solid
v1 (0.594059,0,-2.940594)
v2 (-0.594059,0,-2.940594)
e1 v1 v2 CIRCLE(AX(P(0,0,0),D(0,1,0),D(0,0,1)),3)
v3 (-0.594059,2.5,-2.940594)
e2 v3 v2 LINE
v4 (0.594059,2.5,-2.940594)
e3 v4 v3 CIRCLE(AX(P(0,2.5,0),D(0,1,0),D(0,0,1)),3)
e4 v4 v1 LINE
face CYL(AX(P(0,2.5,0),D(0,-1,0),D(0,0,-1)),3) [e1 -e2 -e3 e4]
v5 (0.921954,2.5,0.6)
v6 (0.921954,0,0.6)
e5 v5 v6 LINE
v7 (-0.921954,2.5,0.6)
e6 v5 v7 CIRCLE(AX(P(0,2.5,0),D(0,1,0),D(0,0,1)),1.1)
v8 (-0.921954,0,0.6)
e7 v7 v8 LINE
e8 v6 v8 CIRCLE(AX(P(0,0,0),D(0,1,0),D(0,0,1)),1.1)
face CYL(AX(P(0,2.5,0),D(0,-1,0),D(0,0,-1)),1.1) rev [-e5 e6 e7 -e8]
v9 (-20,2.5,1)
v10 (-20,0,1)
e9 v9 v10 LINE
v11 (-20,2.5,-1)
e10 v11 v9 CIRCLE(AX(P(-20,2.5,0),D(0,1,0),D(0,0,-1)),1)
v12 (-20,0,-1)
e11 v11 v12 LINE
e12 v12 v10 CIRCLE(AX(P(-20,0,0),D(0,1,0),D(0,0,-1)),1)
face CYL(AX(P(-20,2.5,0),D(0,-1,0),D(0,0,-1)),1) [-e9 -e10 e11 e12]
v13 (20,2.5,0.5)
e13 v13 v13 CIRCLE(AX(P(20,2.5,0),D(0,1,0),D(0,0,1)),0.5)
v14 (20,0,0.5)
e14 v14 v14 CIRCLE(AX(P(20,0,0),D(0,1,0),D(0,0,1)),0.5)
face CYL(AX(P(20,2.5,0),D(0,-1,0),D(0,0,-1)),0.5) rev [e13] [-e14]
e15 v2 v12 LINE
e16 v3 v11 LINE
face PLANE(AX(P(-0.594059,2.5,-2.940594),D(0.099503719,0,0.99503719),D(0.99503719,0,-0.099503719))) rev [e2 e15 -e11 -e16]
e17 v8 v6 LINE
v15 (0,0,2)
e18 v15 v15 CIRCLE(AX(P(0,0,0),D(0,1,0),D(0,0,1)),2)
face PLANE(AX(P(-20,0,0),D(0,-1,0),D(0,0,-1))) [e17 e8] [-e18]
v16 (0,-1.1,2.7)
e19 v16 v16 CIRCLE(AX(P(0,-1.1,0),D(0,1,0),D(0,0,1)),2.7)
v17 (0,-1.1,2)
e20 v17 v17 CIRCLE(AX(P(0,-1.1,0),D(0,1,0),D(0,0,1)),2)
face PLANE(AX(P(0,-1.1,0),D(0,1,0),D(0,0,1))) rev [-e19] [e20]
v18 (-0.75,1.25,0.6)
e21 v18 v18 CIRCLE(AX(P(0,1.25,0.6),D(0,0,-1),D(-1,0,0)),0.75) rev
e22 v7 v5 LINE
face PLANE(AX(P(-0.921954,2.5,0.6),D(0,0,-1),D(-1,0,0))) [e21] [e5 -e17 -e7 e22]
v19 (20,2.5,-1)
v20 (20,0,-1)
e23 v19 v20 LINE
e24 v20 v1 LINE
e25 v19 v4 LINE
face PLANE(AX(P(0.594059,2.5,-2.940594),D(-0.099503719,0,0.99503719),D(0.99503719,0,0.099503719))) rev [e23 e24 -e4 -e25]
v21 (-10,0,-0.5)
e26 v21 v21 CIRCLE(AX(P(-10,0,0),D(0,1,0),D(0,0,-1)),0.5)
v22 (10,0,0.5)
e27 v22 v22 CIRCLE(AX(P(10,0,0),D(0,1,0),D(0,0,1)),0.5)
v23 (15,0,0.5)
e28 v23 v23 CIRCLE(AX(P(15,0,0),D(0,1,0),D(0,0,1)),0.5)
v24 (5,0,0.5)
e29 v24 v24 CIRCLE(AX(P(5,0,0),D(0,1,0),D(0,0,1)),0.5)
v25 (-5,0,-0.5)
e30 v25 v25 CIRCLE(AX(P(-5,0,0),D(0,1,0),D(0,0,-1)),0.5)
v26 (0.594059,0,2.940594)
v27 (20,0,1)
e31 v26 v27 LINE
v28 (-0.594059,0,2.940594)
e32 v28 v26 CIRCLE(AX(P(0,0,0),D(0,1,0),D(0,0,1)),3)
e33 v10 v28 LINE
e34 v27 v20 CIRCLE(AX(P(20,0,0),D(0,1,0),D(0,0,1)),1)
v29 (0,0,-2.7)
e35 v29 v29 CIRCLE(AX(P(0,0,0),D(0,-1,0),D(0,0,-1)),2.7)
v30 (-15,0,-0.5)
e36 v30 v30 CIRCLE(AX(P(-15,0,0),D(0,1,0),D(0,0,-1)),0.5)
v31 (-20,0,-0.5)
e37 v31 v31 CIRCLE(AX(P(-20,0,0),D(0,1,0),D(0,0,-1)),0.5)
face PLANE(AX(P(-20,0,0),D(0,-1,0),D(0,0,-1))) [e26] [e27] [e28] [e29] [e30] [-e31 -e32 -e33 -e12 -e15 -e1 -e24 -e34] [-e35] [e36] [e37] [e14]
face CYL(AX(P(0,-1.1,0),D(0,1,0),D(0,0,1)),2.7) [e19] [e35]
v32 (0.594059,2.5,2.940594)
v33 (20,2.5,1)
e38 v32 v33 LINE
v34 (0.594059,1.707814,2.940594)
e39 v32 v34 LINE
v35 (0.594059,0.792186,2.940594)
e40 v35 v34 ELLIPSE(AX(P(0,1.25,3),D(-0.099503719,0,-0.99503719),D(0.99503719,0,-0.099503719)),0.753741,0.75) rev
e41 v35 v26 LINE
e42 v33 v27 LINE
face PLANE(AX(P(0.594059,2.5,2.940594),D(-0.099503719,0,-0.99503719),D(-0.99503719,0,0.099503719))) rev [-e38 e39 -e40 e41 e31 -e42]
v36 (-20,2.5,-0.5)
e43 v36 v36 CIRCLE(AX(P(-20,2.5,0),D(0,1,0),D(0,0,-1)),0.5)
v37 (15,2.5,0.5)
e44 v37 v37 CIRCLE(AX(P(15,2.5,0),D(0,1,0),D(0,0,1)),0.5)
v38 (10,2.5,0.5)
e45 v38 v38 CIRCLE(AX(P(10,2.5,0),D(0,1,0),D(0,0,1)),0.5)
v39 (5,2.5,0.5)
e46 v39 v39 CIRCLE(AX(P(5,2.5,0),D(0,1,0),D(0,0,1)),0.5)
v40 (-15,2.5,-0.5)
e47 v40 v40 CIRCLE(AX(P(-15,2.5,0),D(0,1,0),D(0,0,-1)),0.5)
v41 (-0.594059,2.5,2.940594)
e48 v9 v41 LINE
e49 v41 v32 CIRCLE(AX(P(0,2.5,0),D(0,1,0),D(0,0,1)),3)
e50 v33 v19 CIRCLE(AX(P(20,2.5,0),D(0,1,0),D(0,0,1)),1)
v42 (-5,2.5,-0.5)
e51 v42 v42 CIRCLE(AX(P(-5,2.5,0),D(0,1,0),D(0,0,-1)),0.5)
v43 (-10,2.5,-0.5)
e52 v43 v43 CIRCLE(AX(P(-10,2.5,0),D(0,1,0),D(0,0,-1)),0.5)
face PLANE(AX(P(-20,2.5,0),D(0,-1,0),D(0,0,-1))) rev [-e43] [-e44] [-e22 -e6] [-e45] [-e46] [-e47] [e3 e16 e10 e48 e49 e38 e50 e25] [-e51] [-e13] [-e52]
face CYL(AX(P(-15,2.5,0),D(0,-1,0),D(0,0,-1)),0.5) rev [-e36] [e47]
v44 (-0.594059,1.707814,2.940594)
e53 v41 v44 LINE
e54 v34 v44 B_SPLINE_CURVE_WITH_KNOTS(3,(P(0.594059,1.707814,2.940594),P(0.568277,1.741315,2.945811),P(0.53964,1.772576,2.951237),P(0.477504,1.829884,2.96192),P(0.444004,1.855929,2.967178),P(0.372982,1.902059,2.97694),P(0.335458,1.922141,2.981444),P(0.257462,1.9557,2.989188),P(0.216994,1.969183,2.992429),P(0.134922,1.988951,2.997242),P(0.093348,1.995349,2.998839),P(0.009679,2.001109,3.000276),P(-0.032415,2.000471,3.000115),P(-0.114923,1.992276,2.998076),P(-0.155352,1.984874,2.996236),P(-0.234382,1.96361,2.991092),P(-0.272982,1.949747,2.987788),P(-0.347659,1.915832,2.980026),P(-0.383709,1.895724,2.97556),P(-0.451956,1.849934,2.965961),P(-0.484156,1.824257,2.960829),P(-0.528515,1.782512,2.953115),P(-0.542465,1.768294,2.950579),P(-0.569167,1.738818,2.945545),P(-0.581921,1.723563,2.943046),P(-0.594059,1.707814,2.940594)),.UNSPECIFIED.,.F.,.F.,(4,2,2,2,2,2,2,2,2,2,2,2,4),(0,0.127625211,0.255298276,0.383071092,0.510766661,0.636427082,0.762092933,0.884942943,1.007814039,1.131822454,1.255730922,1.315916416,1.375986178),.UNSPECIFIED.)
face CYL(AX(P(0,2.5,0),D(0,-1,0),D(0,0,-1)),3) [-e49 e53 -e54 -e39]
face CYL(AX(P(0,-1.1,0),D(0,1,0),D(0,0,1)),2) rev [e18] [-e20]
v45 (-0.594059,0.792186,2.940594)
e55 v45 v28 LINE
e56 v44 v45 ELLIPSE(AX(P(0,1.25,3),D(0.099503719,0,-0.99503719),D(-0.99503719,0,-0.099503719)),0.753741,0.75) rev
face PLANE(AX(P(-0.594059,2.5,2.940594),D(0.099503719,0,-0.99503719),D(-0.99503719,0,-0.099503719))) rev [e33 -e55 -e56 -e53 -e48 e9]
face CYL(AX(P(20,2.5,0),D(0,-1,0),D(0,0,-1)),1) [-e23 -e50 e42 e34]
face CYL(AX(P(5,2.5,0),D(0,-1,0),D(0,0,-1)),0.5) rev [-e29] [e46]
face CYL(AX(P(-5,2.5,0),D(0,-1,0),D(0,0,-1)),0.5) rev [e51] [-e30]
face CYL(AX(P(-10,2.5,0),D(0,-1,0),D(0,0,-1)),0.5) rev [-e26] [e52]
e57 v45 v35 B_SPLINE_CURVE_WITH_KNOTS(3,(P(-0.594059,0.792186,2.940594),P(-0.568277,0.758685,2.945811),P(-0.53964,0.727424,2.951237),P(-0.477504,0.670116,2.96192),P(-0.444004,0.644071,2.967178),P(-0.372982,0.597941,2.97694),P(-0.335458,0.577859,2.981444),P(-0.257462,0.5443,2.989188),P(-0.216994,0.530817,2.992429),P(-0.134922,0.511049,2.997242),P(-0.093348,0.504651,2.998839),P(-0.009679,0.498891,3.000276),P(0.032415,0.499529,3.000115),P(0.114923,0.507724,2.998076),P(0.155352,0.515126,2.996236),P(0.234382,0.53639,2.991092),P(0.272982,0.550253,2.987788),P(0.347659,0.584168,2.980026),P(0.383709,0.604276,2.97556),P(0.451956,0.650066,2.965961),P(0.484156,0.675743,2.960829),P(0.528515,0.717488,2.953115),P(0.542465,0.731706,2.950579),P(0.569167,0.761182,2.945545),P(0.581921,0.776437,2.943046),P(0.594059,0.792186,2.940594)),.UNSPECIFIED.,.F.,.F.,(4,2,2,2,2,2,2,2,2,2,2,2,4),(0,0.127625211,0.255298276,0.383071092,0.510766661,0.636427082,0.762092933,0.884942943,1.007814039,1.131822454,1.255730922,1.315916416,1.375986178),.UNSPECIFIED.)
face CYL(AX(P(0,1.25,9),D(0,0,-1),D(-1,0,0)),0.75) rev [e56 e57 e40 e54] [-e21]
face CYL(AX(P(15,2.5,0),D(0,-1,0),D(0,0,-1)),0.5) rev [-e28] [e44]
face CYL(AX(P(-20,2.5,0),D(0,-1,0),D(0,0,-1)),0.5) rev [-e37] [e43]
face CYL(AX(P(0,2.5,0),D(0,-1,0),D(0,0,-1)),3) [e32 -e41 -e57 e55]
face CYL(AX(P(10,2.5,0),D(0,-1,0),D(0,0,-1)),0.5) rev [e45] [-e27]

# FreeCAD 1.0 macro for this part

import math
import FreeCAD as App
import Part
import Sketcher
from FreeCAD import Vector
Q = App.Units.Quantity

doc = App.newDocument("Part")
body = doc.addObject("PartDesign::Body", "Body")

# Sketch on XZ plane
sketch1 = body.newObject("Sketcher::SketchObject", "Sketch")
sketch1.AttachmentSupport = (doc.getObject("XZ_Plane"), [""])
sketch1.MapMode = "FlatFace"
sketch1.addGeometry([
    Part.LineSegment(Vector(20, -1, 0), Vector(0.594059, -2.940594, 0)),  # 0
    Part.ArcOfCircle(Part.Circle(Vector(0, 0, 0), Vector(0, 0, 1), 3), math.radians(-101.421186), math.radians(-78.578814)),  # 1
    Part.LineSegment(Vector(-0.594059, -2.940594, 0), Vector(-20, -1, 0)),  # 2
    Part.ArcOfCircle(Part.Circle(Vector(-20, 0, 0), Vector(0, 0, 1), 1), math.radians(90), math.radians(270)),  # 3
    Part.LineSegment(Vector(-20, 1, 0), Vector(-0.594059, 2.940594, 0)),  # 4
    Part.ArcOfCircle(Part.Circle(Vector(0, 0, 0), Vector(0, 0, 1), 3), math.radians(78.578814), math.radians(101.421186)),  # 5
    Part.LineSegment(Vector(0.594059, 2.940594, 0), Vector(20, 1, 0)),  # 6
    Part.ArcOfCircle(Part.Circle(Vector(20, 0, 0), Vector(0, 0, 1), 1), math.radians(-90), math.radians(90)),  # 7
    Part.Circle(Vector(20, 0, 0), Vector(0, 0, 1), 0.5),  # 8
    Part.Circle(Vector(15, 0, 0), Vector(0, 0, 1), 0.5),  # 9
    Part.Circle(Vector(10, 0, 0), Vector(0, 0, 1), 0.5),  # 10
    Part.Circle(Vector(5, 0, 0), Vector(0, 0, 1), 0.5),  # 11
    Part.Circle(Vector(-5, 0, 0), Vector(0, 0, 1), 0.5),  # 12
    Part.Circle(Vector(-10, 0, 0), Vector(0, 0, 1), 0.5),  # 13
    Part.Circle(Vector(-15, 0, 0), Vector(0, 0, 1), 0.5),  # 14
    Part.Circle(Vector(-20, 0, 0), Vector(0, 0, 1), 0.5),  # 15
    Part.ArcOfCircle(Part.Circle(Vector(0, 0, 0), Vector(0, 0, 1), 1.1), math.radians(146.944269), math.radians(393.055731)),  # 16
    Part.LineSegment(Vector(0.921954, 0.6, 0), Vector(-0.921954, 0.6, 0)),  # 17
], False)
sketch1.addConstraint([
    Sketcher.Constraint("Coincident", 0, 2, 1, 2),
    Sketcher.Constraint("Coincident", 1, 1, 2, 1),
    Sketcher.Constraint("Coincident", 2, 2, 3, 2),
    Sketcher.Constraint("Coincident", 3, 1, 4, 1),
    Sketcher.Constraint("Coincident", 4, 2, 5, 2),
    Sketcher.Constraint("Coincident", 5, 1, 6, 1),
    Sketcher.Constraint("Coincident", 6, 2, 7, 2),
    Sketcher.Constraint("Coincident", 7, 1, 0, 1),
    Sketcher.Constraint("Coincident", 16, 1, 17, 2),
    Sketcher.Constraint("Coincident", 17, 1, 16, 2),
    Sketcher.Constraint("Horizontal", 17),
    Sketcher.Constraint("Coincident", 1, 3, -1, 1),
    Sketcher.Constraint("Coincident", 5, 3, -1, 1),
    Sketcher.Constraint("Coincident", 16, 3, -1, 1),
    Sketcher.Constraint("Coincident", 8, 3, 7, 3),
    Sketcher.Constraint("Coincident", 15, 3, 3, 3),
    Sketcher.Constraint("Equal", 1, 5),
    Sketcher.Constraint("Equal", 3, 7),
    Sketcher.Constraint("Equal", 8, 9),
    Sketcher.Constraint("Equal", 9, 10),
    Sketcher.Constraint("Equal", 10, 11),
    Sketcher.Constraint("Equal", 11, 12),
    Sketcher.Constraint("Equal", 12, 13),
    Sketcher.Constraint("Equal", 13, 14),
    Sketcher.Constraint("Equal", 14, 15),
    Sketcher.Constraint("Symmetric", 3, 3, 7, 3, -1, 1),
    Sketcher.Constraint("Symmetric", 11, 3, 12, 3, -1, 1),
    Sketcher.Constraint("Symmetric", 10, 3, 13, 3, -1, 1),
    Sketcher.Constraint("Symmetric", 9, 3, 14, 3, -1, 1),
    Sketcher.Constraint("Symmetric", 3, 1, 6, 2, -2),
    Sketcher.Constraint("PointOnObject", 9, 3, -1),
    Sketcher.Constraint("PointOnObject", 10, 3, -1),
    Sketcher.Constraint("PointOnObject", 11, 3, -1),
    Sketcher.Constraint("Parallel", 0, 4),
    Sketcher.Constraint("Parallel", 2, 6),
    Sketcher.Constraint("Horizontal", 0, 2, 1, 1),
    Sketcher.Constraint("Horizontal", 4, 2, 5, 1),
    Sketcher.Constraint("Vertical", 15, 3, 2, 2),
    Sketcher.Constraint("Vertical", 2, 2, 3, 1),
    Sketcher.Constraint("Diameter", 8, Q("1 mm")),
    Sketcher.Constraint("Radius", 1, Q("3 mm")),
    Sketcher.Constraint("Radius", 3, Q("1 mm")),
    Sketcher.Constraint("Radius", 16, Q("1.1 mm")),
    Sketcher.Constraint("DistanceX", 3, 3, -1, 1, Q("20 mm")),
    Sketcher.Constraint("DistanceX", -1, 1, 9, 3, Q("15 mm")),
    Sketcher.Constraint("DistanceX", -1, 1, 10, 3, Q("10 mm")),
    Sketcher.Constraint("DistanceX", -1, 1, 11, 3, Q("5 mm")),
    Sketcher.Constraint("DistanceY", -1, 1, 16, 1, Q("0.6 mm")),
    Sketcher.Constraint("Distance", 0, Q("19.502729 mm")),
])
pad1 = body.newObject("PartDesign::Pad", "Pad")
pad1.Profile = sketch1
pad1.Length = 2.5
pad1.Reversed = True

# Sketch on XY plane
sketch2 = body.newObject("Sketcher::SketchObject", "Sketch001")
sketch2.AttachmentSupport = (doc.getObject("XY_Plane"), [""])
sketch2.MapMode = "FlatFace"
sketch2.addGeometry(Part.Circle(Vector(0, 1.25, 0), Vector(0, 0, 1), 0.75), False)
sketch2.addConstraint([
    Sketcher.Constraint("PointOnObject", 0, 3, -2),
    Sketcher.Constraint("Diameter", 0, Q("1.5 mm")),
    Sketcher.Constraint("DistanceY", -1, 1, 0, 3, Q("1.25 mm")),
])
pocket1 = body.newObject("PartDesign::Pocket", "Pocket")
pocket1.Profile = sketch2
pocket1.Length = 9
pocket1.Reversed = True

# Sketch on XZ plane
sketch3 = body.newObject("Sketcher::SketchObject", "Sketch002")
sketch3.AttachmentSupport = (doc.getObject("XZ_Plane"), [""])
sketch3.MapMode = "FlatFace"
sketch3.addGeometry([
    Part.Circle(Vector(0, 0, 0), Vector(0, 0, 1), 2.7),
    Part.Circle(Vector(0, 0, 0), Vector(0, 0, 1), 2),
], False)
sketch3.addConstraint([
    Sketcher.Constraint("Coincident", 0, 3, -1, 1),
    Sketcher.Constraint("Coincident", 1, 3, -1, 1),
    Sketcher.Constraint("Diameter", 1, Q("4 mm")),
    Sketcher.Constraint("Diameter", 0, Q("5.4 mm")),
])
pad2 = body.newObject("PartDesign::Pad", "Pad001")
pad2.Profile = sketch3
pad2.Length = 1.1

doc.recompute()
